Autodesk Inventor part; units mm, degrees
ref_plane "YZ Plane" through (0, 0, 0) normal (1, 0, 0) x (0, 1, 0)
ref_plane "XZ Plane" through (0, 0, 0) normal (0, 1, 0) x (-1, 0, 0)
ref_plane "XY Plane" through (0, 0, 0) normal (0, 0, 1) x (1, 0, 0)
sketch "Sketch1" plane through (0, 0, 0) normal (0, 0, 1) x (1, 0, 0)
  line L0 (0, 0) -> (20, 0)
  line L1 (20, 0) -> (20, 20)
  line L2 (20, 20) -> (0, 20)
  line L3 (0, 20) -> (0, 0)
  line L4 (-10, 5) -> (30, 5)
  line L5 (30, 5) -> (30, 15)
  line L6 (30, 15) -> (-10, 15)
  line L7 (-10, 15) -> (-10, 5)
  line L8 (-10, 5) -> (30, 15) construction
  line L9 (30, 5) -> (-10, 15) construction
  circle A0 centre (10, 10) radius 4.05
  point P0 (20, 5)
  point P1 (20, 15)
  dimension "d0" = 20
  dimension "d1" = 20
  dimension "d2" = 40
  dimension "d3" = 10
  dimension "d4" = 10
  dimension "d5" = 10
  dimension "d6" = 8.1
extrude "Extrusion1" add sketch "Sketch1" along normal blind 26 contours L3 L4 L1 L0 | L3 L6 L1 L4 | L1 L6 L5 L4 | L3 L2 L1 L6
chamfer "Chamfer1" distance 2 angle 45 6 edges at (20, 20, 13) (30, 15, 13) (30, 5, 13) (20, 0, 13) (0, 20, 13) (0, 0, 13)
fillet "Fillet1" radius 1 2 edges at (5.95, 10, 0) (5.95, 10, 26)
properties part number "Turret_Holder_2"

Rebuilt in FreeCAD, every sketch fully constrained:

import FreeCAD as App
import Part
import Sketcher


def edges_at(feature, points):
    """Names of the edges that pass closest to the given points."""
    edges = feature.Shape.Edges
    near = lambda p: min(range(len(edges)), key=lambda i: edges[i].distToShape(Part.Vertex(*p))[0])
    return sorted({f"Edge{near(p) + 1}" for p in points})


def add_polygon(sketch, points):
    """Adds a closed chain of lines whose ends are joined by coincident constraints."""
    first, n = sketch.GeometryCount, len(points)
    for a, b in zip(points, points[1:] + points[:1]):
        sketch.addGeometry(Part.LineSegment(App.Vector(*a, 0), App.Vector(*b, 0)), False)
    for i in range(n):
        sketch.addConstraint(Sketcher.Constraint("Coincident", first + i, 2, first + (i + 1) % n, 1))

doc = App.newDocument("Part")
body = doc.addObject("PartDesign::Body", "Body")

# Sketch on XY plane
sketch1 = body.newObject("Sketcher::SketchObject", "Sketch")
sketch1.AttachmentSupport = (doc.getObject("XY_Plane"), [""])
sketch1.MapMode = "FlatFace"
add_polygon(sketch1, [(0, 0), (20, 0), (20, 5), (30, 5), (30, 15), (20, 15), (20, 20), (0, 20)])  # lines 0-7
sketch1.addGeometry(Part.Circle(App.Vector(10, 10, 0), App.Vector(0, 0, 1), 4), False)  # 8
sketch1.addConstraint([
    Sketcher.Constraint("Horizontal", 0),
    Sketcher.Constraint("Vertical", 1),
    Sketcher.Constraint("Horizontal", 2),
    Sketcher.Constraint("Vertical", 3),
    Sketcher.Constraint("Horizontal", 4),
    Sketcher.Constraint("Vertical", 5),
    Sketcher.Constraint("Horizontal", 6),
    Sketcher.Constraint("Vertical", 7),
    Sketcher.Constraint("Coincident", 7, 2, -1, 1),
    Sketcher.Constraint("Vertical", 1, 2, 4, 2),
    Sketcher.Constraint("Equal", 4, 3),
    Sketcher.Constraint("Equal", 1, 5),
    Sketcher.Constraint("Equal", 6, 7),
    Sketcher.Constraint("Diameter", 8, 8.1),
    Sketcher.Constraint("DistanceX", 0, 1, 0, 2, 20.0),
    Sketcher.Constraint("DistanceX", 2, 1, 2, 2, 10.0),
    Sketcher.Constraint("DistanceX", -1, 1, 8, 3, 10.0),
    Sketcher.Constraint("DistanceY", -1, 1, 8, 3, 10.0),
])
pad1 = body.newObject("PartDesign::Pad", "Pad")
pad1.Profile = sketch1
pad1.Length = 26
doc.recompute()

chamfer = body.newObject("PartDesign::Chamfer", "Chamfer")
chamfer.Base = (pad1, edges_at(pad1, [
    (20, 20, 13),
    (30, 15, 13),
    (30, 5, 13),
    (20, 0, 13),
    (0, 20, 13),
    (0, 0, 13),
]))
chamfer.Size = 2
doc.recompute()

fillet = body.newObject("PartDesign::Fillet", "Fillet")
fillet.Base = (chamfer, edges_at(chamfer, [(5.95, 10, 0), (5.95, 10, 26)]))
fillet.Radius = 1

doc.recompute()
